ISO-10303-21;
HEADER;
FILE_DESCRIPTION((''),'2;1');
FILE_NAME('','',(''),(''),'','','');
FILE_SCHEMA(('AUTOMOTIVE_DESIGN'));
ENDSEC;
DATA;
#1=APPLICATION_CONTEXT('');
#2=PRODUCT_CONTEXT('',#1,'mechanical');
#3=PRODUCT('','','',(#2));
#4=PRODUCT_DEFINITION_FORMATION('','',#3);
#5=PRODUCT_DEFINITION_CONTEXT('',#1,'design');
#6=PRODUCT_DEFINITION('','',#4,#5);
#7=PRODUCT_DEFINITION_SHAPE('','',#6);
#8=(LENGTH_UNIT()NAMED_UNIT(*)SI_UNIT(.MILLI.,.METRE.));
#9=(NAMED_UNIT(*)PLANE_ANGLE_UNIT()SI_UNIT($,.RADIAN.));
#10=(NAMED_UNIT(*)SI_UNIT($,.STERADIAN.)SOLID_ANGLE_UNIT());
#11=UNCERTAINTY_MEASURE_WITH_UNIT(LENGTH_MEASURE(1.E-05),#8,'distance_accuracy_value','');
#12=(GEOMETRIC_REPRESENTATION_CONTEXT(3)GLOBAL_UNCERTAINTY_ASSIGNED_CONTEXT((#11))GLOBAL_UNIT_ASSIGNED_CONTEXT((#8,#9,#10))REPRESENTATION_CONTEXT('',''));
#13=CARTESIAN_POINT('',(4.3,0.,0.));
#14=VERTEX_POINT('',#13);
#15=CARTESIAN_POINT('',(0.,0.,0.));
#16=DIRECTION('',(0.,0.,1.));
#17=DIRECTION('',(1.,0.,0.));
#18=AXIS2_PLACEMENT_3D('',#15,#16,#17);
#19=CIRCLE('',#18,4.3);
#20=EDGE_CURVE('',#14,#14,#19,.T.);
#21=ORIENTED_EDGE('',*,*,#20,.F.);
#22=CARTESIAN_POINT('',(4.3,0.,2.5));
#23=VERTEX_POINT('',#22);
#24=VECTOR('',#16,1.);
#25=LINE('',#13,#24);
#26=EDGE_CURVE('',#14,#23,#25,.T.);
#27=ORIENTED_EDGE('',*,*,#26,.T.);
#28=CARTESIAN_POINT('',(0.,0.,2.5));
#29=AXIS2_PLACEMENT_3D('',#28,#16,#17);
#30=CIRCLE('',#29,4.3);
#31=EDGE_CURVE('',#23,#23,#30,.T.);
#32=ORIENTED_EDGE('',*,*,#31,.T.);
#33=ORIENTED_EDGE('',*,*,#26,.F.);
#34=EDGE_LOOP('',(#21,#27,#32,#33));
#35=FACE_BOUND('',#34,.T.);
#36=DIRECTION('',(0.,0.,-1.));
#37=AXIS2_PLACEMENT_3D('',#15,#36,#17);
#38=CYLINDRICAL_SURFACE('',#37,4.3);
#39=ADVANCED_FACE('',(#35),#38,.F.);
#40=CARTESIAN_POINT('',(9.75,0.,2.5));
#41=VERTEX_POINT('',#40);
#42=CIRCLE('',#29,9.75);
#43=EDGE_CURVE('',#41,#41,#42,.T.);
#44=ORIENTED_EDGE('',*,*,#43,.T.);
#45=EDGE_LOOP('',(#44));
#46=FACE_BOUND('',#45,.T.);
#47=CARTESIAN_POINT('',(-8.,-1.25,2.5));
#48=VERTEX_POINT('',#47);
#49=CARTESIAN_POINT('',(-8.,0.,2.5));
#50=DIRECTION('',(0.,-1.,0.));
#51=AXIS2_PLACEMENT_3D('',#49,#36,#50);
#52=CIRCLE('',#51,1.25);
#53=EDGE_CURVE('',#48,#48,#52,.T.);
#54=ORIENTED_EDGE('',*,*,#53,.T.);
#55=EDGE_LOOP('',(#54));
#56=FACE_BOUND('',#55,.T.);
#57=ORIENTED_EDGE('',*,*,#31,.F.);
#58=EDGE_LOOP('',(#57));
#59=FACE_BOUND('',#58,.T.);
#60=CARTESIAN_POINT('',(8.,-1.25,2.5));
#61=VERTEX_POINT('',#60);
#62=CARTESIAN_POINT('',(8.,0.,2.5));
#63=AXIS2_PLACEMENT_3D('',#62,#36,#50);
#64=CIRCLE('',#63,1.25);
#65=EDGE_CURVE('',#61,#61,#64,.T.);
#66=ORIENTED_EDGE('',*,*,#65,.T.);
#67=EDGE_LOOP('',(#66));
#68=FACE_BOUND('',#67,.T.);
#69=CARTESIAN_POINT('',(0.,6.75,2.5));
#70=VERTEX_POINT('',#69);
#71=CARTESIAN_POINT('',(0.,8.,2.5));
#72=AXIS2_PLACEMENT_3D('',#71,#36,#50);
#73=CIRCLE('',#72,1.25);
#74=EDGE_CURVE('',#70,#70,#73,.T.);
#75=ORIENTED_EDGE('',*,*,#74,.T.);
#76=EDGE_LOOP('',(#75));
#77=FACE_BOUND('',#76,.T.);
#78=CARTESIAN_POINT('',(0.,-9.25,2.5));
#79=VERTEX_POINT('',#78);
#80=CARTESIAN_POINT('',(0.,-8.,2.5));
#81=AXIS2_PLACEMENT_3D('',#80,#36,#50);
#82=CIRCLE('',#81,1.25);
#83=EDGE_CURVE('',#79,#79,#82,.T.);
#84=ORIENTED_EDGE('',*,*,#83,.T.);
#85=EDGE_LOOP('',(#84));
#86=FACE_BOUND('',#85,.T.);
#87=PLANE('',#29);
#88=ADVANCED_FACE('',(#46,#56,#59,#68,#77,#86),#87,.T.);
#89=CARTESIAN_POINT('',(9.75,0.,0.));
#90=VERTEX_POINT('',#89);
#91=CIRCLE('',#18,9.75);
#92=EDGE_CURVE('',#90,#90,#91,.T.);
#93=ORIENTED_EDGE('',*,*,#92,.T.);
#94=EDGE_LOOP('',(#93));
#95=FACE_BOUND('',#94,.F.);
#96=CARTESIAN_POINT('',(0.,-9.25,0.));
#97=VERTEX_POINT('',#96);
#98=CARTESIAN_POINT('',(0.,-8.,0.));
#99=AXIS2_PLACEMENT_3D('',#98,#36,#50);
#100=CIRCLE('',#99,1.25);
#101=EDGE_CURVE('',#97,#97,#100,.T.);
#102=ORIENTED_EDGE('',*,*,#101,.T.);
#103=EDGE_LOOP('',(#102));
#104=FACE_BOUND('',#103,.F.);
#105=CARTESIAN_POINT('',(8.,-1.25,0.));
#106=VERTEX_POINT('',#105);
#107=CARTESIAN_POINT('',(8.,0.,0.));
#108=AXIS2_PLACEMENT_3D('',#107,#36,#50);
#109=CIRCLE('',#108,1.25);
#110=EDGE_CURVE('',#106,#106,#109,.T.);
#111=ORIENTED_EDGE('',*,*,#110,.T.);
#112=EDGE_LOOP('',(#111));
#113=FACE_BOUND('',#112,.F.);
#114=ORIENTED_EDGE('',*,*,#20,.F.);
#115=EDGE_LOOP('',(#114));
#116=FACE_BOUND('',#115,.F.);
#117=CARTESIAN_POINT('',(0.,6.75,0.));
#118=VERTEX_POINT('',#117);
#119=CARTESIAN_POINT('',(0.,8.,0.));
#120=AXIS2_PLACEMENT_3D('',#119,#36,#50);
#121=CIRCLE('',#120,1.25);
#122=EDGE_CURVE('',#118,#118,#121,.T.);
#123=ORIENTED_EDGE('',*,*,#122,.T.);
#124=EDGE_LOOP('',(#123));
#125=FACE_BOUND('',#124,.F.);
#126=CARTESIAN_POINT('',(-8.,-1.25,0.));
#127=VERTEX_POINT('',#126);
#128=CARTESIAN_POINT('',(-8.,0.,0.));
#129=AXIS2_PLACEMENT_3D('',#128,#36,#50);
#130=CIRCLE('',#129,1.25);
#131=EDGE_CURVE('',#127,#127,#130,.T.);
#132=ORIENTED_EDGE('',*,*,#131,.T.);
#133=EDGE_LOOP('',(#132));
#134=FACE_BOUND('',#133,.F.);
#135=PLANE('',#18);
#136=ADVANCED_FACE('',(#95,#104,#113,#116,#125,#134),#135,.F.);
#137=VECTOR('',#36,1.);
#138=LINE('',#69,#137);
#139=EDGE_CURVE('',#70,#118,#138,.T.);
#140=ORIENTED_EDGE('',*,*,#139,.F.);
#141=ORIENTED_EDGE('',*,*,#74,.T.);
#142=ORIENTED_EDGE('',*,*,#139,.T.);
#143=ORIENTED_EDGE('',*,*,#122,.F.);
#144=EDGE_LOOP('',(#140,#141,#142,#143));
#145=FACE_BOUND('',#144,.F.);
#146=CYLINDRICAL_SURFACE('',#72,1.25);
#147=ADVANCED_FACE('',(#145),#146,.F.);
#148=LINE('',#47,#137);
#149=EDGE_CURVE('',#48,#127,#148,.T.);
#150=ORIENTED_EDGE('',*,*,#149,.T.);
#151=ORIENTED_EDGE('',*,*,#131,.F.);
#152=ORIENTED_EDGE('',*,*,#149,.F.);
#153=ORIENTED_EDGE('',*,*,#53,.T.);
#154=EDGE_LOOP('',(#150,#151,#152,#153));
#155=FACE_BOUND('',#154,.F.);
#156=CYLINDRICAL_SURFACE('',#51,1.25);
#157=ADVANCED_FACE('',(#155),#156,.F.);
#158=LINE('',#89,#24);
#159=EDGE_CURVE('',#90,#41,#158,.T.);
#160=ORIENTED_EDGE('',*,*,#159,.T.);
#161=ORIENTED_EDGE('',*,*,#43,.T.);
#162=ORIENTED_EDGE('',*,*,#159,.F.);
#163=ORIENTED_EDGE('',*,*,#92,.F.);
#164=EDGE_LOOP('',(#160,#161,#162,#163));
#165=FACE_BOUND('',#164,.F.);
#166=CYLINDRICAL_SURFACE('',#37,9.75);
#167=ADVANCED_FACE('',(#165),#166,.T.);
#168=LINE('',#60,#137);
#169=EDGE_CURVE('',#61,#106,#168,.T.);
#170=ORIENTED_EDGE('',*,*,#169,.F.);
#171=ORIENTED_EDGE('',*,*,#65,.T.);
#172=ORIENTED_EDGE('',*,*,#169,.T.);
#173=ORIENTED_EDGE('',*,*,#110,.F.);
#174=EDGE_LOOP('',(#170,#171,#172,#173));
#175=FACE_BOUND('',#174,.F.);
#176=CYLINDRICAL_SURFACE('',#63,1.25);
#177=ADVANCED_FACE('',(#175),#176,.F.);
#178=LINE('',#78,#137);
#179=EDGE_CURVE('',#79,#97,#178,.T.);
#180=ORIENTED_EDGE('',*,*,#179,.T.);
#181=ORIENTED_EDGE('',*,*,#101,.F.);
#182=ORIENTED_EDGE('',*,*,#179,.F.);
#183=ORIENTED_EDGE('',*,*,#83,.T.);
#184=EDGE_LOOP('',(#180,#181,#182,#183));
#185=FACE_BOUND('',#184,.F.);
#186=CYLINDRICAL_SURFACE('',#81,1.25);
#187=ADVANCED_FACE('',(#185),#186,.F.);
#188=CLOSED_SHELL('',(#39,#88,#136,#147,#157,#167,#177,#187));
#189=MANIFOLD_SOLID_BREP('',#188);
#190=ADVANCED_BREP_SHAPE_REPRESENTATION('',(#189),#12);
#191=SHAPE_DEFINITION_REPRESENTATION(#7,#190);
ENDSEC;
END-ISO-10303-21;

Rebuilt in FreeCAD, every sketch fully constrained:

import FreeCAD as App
import Part
import Sketcher
from FreeCAD import Vector
Q = App.Units.Quantity

doc = App.newDocument("Part")
params = doc.addObject("Spreadsheet::Sheet", "Params")
for row, (alias, value) in enumerate([
    ("sketch1_diameter", "19.5 mm"),
    ("sketch1_diameter2", "8.6 mm"),
    ("pad1_length", "2.5 mm"),
    ("sketch2_diameter", "2.5 mm"),
    ("hole_diameter", "2.5 mm"),
], start=1):
    params.set(f"A{row}", alias)
    params.set(f"B{row}", "=" + value)
    params.setAlias(f"B{row}", alias)

body = doc.addObject("PartDesign::Body", "Body")

# Sketch on XY plane
sketch1 = body.newObject("Sketcher::SketchObject", "Sketch")
sketch1.AttachmentSupport = (doc.getObject("XY_Plane"), [""])
sketch1.MapMode = "FlatFace"
sketch1.addGeometry([
    Part.Circle(Vector(0, 0, 0), Vector(0, 0, 1), 9.75),
    Part.Circle(Vector(0, 0, 0), Vector(0, 0, 1), 4.3),
], False)
sketch1.addConstraint([
    Sketcher.Constraint("Coincident", 0, 3, -1, 1),
    Sketcher.Constraint("Coincident", 1, 3, -1, 1),
    Sketcher.Constraint("Diameter", 0, Q("19.5 mm")),
    Sketcher.Constraint("Diameter", 1, Q("8.6 mm")),
])
sketch1.setExpression("Constraints[2]", "Params.sketch1_diameter")
sketch1.setExpression("Constraints[3]", "Params.sketch1_diameter2")
pad1 = body.newObject("PartDesign::Pad", "Pad")
pad1.Profile = sketch1
pad1.setExpression("Length", "Params.pad1_length")

# Sketch on XY plane
sketch2 = body.newObject("Sketcher::SketchObject", "Sketch001")
sketch2.AttachmentSupport = (doc.getObject("XY_Plane"), [""])
sketch2.MapMode = "FlatFace"
sketch2.AttachmentOffset = App.Placement(Vector(0, 0, 2.5), App.Rotation())
sketch2.addGeometry([
    Part.Circle(Vector(0, 8, 0), Vector(0, 0, 1), 1.25),
    Part.Circle(Vector(-8, 0, 0), Vector(0, 0, 1), 1.25),
    Part.Circle(Vector(0, -8, 0), Vector(0, 0, 1), 1.25),
    Part.Circle(Vector(8, 0, 0), Vector(0, 0, 1), 1.25),
], False)
sketch2.addConstraint([
    Sketcher.Constraint("Equal", 0, 1),
    Sketcher.Constraint("Equal", 1, 2),
    Sketcher.Constraint("Equal", 2, 3),
    Sketcher.Constraint("Symmetric", 0, 3, 2, 3, -1, 1),
    Sketcher.Constraint("Symmetric", 1, 3, 3, 3, -1, 1),
    Sketcher.Constraint("PointOnObject", 0, 3, -2),
    Sketcher.Constraint("PointOnObject", 1, 3, -1),
    Sketcher.Constraint("Diameter", 0, Q("2.5 mm")),
    Sketcher.Constraint("DistanceY", -1, 1, 0, 3, Q("8 mm")),
    Sketcher.Constraint("DistanceX", 1, 3, -1, 1, Q("8 mm")),
])
sketch2.setExpression("Constraints[7]", "Params.sketch2_diameter")
doc.recompute()
hole = body.newObject("PartDesign::Hole", "Hole")
hole.Profile = sketch2
hole.ThreadType = "None"
hole.setExpression("Diameter", "Params.hole_diameter")
hole.DepthType = "ThroughAll"

doc.recompute()
